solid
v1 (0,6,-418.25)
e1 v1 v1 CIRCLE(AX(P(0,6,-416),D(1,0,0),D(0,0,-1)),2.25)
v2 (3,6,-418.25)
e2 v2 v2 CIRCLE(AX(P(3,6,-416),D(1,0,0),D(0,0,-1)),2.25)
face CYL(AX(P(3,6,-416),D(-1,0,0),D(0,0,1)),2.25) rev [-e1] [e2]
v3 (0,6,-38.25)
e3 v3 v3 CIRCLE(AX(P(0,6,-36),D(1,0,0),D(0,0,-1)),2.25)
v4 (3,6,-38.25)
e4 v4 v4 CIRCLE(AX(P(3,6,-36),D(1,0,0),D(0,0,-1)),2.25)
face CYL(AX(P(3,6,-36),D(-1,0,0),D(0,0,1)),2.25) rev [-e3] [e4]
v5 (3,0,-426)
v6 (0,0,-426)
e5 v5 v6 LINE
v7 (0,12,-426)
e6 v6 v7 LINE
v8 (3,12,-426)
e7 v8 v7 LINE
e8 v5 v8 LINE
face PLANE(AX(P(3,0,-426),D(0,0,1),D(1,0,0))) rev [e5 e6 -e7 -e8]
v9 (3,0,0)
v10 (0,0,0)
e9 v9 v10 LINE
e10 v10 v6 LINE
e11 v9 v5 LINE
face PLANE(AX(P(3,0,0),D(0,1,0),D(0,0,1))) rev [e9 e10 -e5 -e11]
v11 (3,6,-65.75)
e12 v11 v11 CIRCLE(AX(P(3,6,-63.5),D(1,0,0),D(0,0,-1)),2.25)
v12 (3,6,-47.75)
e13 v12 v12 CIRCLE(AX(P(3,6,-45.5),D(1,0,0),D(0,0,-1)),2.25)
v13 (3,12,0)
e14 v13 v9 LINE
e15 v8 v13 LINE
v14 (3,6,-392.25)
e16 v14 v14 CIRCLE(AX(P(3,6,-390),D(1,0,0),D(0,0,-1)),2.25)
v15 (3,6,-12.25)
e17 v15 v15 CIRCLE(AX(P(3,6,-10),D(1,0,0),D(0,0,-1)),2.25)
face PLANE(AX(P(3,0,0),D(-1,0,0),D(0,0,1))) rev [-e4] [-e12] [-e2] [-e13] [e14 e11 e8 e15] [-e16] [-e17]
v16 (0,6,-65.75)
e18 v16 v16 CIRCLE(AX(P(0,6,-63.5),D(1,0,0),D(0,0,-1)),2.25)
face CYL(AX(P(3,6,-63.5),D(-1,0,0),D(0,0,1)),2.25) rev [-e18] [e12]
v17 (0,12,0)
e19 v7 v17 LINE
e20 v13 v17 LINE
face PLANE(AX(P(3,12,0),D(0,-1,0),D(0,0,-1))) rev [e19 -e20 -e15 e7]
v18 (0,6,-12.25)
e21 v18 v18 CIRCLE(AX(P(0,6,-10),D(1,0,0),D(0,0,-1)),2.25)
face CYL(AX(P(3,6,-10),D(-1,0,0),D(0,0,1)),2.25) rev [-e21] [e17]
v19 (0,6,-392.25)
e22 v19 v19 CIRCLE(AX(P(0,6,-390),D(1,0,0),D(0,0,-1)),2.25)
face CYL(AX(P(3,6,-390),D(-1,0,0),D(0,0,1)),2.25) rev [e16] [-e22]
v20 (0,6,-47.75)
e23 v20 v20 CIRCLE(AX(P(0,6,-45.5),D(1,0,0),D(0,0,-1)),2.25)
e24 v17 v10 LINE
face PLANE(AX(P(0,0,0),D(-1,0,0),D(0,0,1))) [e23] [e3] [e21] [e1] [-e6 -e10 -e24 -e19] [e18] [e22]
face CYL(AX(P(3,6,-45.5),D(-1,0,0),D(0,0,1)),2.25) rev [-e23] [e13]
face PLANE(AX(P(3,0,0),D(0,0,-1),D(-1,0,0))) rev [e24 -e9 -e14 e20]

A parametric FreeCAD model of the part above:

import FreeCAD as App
import Part
import Sketcher
Q = App.Units.Quantity


def add_polygon(sketch, points):
    """Adds a closed chain of lines whose ends are joined by coincident constraints."""
    first, n = sketch.GeometryCount, len(points)
    for a, b in zip(points, points[1:] + points[:1]):
        sketch.addGeometry(Part.LineSegment(App.Vector(*a, 0), App.Vector(*b, 0)), False)
    for i in range(n):
        sketch.addConstraint(Sketcher.Constraint("Coincident", first + i, 2, first + (i + 1) % n, 1))

doc = App.newDocument("Part")
body = doc.addObject("PartDesign::Body", "Body")

sketch1 = body.newObject("Sketcher::SketchObject", "Sketch")
sketch1.AttachmentSupport = (doc.getObject("YZ_Plane"), [""])
sketch1.MapMode = "FlatFace"
add_polygon(sketch1, [(12, 0), (0, 0), (0, -426), (12, -426)])
sketch1.addGeometry(Part.Circle(App.Vector(6, -10, 0), App.Vector(0, 0, 1), 2.25), False)
sketch1.addGeometry(Part.Circle(App.Vector(6, -36, 0), App.Vector(0, 0, 1), 2.25), False)
sketch1.addGeometry(Part.Circle(App.Vector(6, -45.5, 0), App.Vector(0, 0, 1), 2.25), False)
sketch1.addGeometry(Part.Circle(App.Vector(6, -63.5, 0), App.Vector(0, 0, 1), 2.25), False)
sketch1.addGeometry(Part.Circle(App.Vector(6, -390, 0), App.Vector(0, 0, 1), 2.25), False)
sketch1.addGeometry(Part.Circle(App.Vector(6, -416, 0), App.Vector(0, 0, 1), 2.25), False)
sketch1.addConstraint(Sketcher.Constraint("Horizontal", 0))
sketch1.addConstraint(Sketcher.Constraint("Vertical", 1))
sketch1.addConstraint(Sketcher.Constraint("Horizontal", 2))
sketch1.addConstraint(Sketcher.Constraint("Vertical", 3))
sketch1.addConstraint(Sketcher.Constraint("Coincident", 0, 2, -1, 1))
sketch1.addConstraint(Sketcher.Constraint("Equal", 4, 5))
sketch1.addConstraint(Sketcher.Constraint("Equal", 5, 6))
sketch1.addConstraint(Sketcher.Constraint("Equal", 6, 7))
sketch1.addConstraint(Sketcher.Constraint("Equal", 7, 8))
sketch1.addConstraint(Sketcher.Constraint("Equal", 8, 9))
sketch1.addConstraint(Sketcher.Constraint("Vertical", 4, 3, 5, 3))
sketch1.addConstraint(Sketcher.Constraint("Vertical", 5, 3, 6, 3))
sketch1.addConstraint(Sketcher.Constraint("Vertical", 6, 3, 7, 3))
sketch1.addConstraint(Sketcher.Constraint("Vertical", 7, 3, 8, 3))
sketch1.addConstraint(Sketcher.Constraint("Vertical", 8, 3, 9, 3))
sketch1.addConstraint(Sketcher.Constraint("Diameter", 4, Q("4.5 mm")))
sketch1.addConstraint(Sketcher.Constraint("DistanceX", 0, 2, 0, 1, Q("12 mm")))
sketch1.addConstraint(Sketcher.Constraint("DistanceY", 1, 2, 1, 1, Q("426 mm")))
sketch1.addConstraint(Sketcher.Constraint("DistanceX", -1, 1, 4, 3, Q("6 mm")))
sketch1.addConstraint(Sketcher.Constraint("DistanceY", 4, 3, -1, 1, Q("10 mm")))
sketch1.addConstraint(Sketcher.Constraint("DistanceY", 5, 3, -1, 1, Q("36 mm")))
sketch1.addConstraint(Sketcher.Constraint("DistanceY", 8, 3, -1, 1, Q("390 mm")))
sketch1.addConstraint(Sketcher.Constraint("DistanceY", 9, 3, -1, 1, Q("416 mm")))
sketch1.addConstraint(Sketcher.Constraint("DistanceY", 7, 3, 6, 3, Q("18 mm")))
sketch1.addConstraint(Sketcher.Constraint("DistanceY", 6, 3, -1, 1, Q("45.5 mm")))
pad1 = body.newObject("PartDesign::Pad", "Pad")
pad1.Profile = sketch1
pad1.Length = 3

doc.recompute()
